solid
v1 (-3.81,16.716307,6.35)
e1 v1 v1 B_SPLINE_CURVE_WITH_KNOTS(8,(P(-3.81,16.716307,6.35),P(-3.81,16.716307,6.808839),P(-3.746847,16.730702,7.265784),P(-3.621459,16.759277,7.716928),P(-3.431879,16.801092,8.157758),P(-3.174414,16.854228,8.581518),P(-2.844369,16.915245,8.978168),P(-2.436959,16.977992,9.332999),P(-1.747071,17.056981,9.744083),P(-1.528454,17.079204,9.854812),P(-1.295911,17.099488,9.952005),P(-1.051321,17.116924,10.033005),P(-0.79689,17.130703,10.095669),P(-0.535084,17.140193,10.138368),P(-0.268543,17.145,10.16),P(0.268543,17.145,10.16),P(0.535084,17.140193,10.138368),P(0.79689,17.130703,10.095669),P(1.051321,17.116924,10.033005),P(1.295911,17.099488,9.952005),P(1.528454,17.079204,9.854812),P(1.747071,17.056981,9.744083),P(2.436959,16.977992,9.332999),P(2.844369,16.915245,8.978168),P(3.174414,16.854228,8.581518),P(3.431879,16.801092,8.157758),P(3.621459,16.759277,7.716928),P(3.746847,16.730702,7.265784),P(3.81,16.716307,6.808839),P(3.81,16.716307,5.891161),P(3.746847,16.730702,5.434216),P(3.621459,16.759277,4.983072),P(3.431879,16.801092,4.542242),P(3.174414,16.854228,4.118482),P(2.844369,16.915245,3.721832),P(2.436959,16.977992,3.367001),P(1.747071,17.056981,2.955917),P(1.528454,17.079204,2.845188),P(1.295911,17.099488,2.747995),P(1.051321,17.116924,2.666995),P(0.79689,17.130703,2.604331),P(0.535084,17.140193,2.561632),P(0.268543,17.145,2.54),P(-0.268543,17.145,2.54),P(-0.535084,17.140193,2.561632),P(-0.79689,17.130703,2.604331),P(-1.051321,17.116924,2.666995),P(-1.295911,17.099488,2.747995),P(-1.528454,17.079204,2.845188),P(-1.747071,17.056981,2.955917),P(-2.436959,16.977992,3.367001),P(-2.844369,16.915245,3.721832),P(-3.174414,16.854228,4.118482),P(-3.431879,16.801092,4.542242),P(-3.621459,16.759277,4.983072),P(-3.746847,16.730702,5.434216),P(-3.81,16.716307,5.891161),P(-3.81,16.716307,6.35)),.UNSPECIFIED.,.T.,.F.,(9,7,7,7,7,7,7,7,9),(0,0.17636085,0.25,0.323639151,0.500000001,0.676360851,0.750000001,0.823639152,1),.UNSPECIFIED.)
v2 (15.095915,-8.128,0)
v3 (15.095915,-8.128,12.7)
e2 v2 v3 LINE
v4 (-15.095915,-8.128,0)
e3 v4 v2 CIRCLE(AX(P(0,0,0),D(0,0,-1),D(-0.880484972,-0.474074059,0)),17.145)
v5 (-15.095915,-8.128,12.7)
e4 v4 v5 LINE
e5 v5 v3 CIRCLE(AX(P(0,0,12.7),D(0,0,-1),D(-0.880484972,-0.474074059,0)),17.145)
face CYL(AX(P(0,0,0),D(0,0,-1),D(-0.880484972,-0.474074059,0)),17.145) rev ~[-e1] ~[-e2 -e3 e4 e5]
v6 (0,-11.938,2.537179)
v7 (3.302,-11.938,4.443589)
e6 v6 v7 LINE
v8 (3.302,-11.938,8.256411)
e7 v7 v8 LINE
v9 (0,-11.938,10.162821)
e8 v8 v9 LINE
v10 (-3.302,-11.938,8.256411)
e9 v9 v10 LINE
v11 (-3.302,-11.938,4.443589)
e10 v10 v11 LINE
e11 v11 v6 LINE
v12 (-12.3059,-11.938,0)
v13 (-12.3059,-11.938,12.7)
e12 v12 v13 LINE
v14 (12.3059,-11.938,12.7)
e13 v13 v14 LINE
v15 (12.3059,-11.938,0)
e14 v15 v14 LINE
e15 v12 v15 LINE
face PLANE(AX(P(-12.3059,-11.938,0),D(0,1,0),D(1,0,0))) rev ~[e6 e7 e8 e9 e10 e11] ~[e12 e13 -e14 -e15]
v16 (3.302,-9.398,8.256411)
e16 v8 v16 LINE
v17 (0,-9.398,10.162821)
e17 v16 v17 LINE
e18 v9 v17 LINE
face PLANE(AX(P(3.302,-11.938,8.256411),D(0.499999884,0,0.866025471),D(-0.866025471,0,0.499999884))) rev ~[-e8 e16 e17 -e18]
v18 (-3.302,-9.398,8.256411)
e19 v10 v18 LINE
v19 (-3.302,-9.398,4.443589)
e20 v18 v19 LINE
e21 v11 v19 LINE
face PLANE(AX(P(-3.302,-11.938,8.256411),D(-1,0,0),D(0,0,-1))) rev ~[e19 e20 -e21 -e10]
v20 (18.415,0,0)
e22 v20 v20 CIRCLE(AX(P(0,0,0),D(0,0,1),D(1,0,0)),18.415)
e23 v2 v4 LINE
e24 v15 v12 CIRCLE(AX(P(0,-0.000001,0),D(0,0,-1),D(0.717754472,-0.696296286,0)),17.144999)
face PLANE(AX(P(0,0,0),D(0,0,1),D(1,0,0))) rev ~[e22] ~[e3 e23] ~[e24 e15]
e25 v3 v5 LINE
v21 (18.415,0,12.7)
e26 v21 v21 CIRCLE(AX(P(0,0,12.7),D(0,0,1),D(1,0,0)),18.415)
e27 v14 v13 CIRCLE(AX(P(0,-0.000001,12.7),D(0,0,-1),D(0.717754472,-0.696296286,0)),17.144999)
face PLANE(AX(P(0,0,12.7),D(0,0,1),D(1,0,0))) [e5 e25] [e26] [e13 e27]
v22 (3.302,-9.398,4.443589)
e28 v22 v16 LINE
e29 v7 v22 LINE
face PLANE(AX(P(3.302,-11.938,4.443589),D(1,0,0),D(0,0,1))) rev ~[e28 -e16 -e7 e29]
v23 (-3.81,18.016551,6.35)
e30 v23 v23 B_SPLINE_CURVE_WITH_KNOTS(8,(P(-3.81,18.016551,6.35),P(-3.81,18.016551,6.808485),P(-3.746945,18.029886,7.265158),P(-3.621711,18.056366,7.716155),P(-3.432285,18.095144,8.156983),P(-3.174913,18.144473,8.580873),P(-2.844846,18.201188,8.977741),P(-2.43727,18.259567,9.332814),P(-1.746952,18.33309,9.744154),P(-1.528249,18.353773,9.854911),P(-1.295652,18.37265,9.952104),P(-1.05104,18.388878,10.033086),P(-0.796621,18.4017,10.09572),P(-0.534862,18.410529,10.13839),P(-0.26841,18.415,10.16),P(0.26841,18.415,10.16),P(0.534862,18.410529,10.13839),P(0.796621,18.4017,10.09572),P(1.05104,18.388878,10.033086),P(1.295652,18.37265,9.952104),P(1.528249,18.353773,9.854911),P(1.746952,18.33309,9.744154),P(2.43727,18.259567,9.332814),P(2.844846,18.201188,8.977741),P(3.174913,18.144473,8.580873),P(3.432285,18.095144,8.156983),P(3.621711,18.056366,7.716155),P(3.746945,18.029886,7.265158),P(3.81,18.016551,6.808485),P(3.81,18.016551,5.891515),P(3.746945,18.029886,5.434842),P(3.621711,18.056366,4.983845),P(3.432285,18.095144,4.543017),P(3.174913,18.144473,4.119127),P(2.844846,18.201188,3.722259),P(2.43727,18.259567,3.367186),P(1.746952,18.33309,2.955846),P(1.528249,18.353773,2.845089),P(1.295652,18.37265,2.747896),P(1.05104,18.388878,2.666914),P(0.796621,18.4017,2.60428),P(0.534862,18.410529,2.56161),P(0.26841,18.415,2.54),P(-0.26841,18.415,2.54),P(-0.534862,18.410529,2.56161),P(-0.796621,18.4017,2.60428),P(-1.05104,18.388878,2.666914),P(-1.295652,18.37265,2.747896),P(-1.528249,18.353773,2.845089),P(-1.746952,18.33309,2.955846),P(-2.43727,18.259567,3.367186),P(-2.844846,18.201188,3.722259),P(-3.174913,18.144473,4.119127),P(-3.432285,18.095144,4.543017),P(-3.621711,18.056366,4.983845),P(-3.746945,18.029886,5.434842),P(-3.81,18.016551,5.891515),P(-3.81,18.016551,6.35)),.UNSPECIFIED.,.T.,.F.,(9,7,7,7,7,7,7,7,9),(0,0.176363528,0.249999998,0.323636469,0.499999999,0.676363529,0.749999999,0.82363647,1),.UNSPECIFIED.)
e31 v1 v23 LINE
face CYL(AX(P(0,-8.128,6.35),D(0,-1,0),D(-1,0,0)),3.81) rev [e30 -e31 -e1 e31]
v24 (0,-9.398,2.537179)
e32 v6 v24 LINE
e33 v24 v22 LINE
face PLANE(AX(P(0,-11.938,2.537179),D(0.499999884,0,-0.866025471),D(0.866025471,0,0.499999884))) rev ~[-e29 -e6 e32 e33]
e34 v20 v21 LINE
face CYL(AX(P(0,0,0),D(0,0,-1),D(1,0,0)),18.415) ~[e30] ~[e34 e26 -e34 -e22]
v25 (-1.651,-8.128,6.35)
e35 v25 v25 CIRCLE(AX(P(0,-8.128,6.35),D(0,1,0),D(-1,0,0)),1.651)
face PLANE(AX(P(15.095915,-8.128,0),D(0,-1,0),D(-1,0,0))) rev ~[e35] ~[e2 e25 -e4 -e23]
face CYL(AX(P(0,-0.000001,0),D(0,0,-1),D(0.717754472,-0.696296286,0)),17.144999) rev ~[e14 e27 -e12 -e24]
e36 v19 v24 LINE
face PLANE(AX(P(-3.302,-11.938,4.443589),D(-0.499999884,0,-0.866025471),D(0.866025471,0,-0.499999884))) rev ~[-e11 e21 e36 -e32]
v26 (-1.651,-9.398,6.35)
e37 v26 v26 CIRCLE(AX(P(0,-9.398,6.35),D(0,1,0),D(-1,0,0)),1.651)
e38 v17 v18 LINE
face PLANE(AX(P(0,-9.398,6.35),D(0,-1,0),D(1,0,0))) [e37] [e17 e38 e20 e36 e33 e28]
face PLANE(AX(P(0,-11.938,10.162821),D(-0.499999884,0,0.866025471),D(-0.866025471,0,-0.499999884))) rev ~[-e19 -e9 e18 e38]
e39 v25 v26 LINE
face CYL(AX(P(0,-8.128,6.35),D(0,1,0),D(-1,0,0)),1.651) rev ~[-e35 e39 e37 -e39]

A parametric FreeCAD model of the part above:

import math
import FreeCAD as App
import Part
import Sketcher
Q = App.Units.Quantity


def add_polygon(sketch, points):
    """Adds a closed chain of lines whose ends are joined by coincident constraints."""
    first, n = sketch.GeometryCount, len(points)
    for a, b in zip(points, points[1:] + points[:1]):
        sketch.addGeometry(Part.LineSegment(App.Vector(*a, 0), App.Vector(*b, 0)), False)
    for i in range(n):
        sketch.addConstraint(Sketcher.Constraint("Coincident", first + i, 2, first + (i + 1) % n, 1))

doc = App.newDocument("Part")
params = doc.addObject("Spreadsheet::Sheet", "Params")
for row, (alias, value) in enumerate([
    ("sketch1_diameter", "1.45 in"),
    ("sketch1_radius", "0.675 in"),
    ("pad1_length", "0.5 in"),
    ("sketch2_diameter", "0.13 in"),
    ("pocket1_length", "0.15 in"),
    ("pocket2_length", "0.1 in"),
    ("sketch4_diameter", "0.3 in"),
], start=1):
    params.set(f"A{row}", alias)
    params.set(f"B{row}", "=" + value)
    params.setAlias(f"B{row}", alias)

body = doc.addObject("PartDesign::Body", "Body")

sketch1 = doc.addObject("Sketcher::SketchObject", "Sketch")
body.addObject(sketch1)
sketch1.AttachmentSupport = (doc.XY_Plane, [""])
sketch1.MapMode = "FlatFace"
sketch1.addGeometry([
    Part.Circle(App.Vector(0, 0, 0), App.Vector(0, 0, 1), 18),
    Part.LineSegment(App.Vector(-12, -12, 0), App.Vector(12, -12, 0)),
    Part.ArcOfCircle(Part.Circle(App.Vector(0, 0, 0), App.Vector(0, 0, 1), 17), math.radians(-136), math.radians(-44)),
    Part.ArcOfCircle(Part.Circle(App.Vector(0, 0, 0), App.Vector(0, 0, 1), 17), math.radians(-28), math.radians(208)),
    Part.LineSegment(App.Vector(15, -8, 0), App.Vector(-15, -8, 0)),
], False)
sketch1.addConstraint([
    Sketcher.Constraint("Coincident", 1, 1, 2, 1),
    Sketcher.Constraint("Coincident", 2, 2, 1, 2),
    Sketcher.Constraint("Coincident", 3, 1, 4, 1),
    Sketcher.Constraint("Coincident", 4, 2, 3, 2),
    Sketcher.Constraint("Horizontal", 1),
    Sketcher.Constraint("Horizontal", 4),
    Sketcher.Constraint("Coincident", 0, 3, -1, 1),
    Sketcher.Constraint("Coincident", 2, 3, -1, 1),
    Sketcher.Constraint("Coincident", 3, 3, -1, 1),
    Sketcher.Constraint("Equal", 2, 3),
    Sketcher.Constraint("Diameter", 0, Q("1.45 in")),
    Sketcher.Constraint("Radius", 2, Q("0.675 in")),
    Sketcher.Constraint("DistanceY", 1, 1, -1, 1, Q("0.47 in")),
    Sketcher.Constraint("DistanceY", 3, 1, -1, 1, Q("0.32 in")),
])
sketch1.setExpression("Constraints[10]", "Params.sketch1_diameter")
sketch1.setExpression("Constraints[11]", "Params.sketch1_radius")
pad1 = doc.addObject("PartDesign::Pad", "Pad")
body.addObject(pad1)
pad1.Profile = sketch1
pad1.setExpression("Length", "Params.pad1_length")

sketch2 = doc.addObject("Sketcher::SketchObject", "Sketch001")
body.addObject(sketch2)
sketch2.AttachmentSupport = (doc.XZ_Plane, [""])
sketch2.MapMode = "FlatFace"
sketch2.AttachmentOffset = App.Placement(App.Vector(0, 0, 0.32 * 25.4), App.Rotation())
sketch2.addGeometry(Part.Circle(App.Vector(0, 6.3, 0), App.Vector(0, 0, 1), 1.7), False)
sketch2.addConstraint([
    Sketcher.Constraint("PointOnObject", 0, 3, -2),
    Sketcher.Constraint("Diameter", 0, Q("0.13 in")),
    Sketcher.Constraint("DistanceY", -1, 1, 0, 3, Q("0.25 in")),
])
sketch2.setExpression("Constraints[1]", "Params.sketch2_diameter")
pocket1 = doc.addObject("PartDesign::Pocket", "Pocket")
body.addObject(pocket1)
pocket1.Profile = sketch2
pocket1.setExpression("Length", "Params.pocket1_length")
pocket1.Reversed = True

sketch3 = doc.addObject("Sketcher::SketchObject", "Sketch002")
body.addObject(sketch3)
sketch3.AttachmentSupport = (doc.XZ_Plane, [""])
sketch3.MapMode = "FlatFace"
sketch3.AttachmentOffset = App.Placement(App.Vector(0, 0, 0.47 * 25.4), App.Rotation())
add_polygon(sketch3, [(3.3, 4.4), (3.3, 8.3), (0, 10.2), (-3.3, 8.3), (-3.3, 4.4), (0, 2.5)])
sketch3.addConstraint([
    Sketcher.Constraint("Vertical", 0),
    Sketcher.Constraint("Vertical", 3),
    Sketcher.Constraint("Symmetric", 0, 2, 2, 2, -2),
    Sketcher.Constraint("PointOnObject", 1, 2, -2),
    Sketcher.Constraint("PointOnObject", 4, 2, -2),
    Sketcher.Constraint("Parallel", 1, 4),
    Sketcher.Constraint("Parallel", 2, 5),
    Sketcher.Constraint("Angle", 1, Q("150.000008 deg")),
    Sketcher.Constraint("DistanceX", -1, 1, 0, 2, Q("0.13 in")),
    Sketcher.Constraint("DistanceY", 0, 1, 0, 2, Q("3.812822 mm")),
    Sketcher.Constraint("DistanceY", -1, 1, 0, 2, Q("8.256411 mm")),
])
pocket2 = doc.addObject("PartDesign::Pocket", "Pocket001")
body.addObject(pocket2)
pocket2.Profile = sketch3
pocket2.setExpression("Length", "Params.pocket2_length")

sketch4 = doc.addObject("Sketcher::SketchObject", "Sketch003")
body.addObject(sketch4)
sketch4.AttachmentSupport = (doc.XZ_Plane, [""])
sketch4.MapMode = "FlatFace"
sketch4.AttachmentOffset = App.Placement(App.Vector(0, 0, 0.32 * 25.4), App.Rotation())
sketch4.addGeometry(Part.Circle(App.Vector(0, 6.3, 0), App.Vector(0, 0, 1), 3.8), False)
sketch4.addConstraint([
    Sketcher.Constraint("PointOnObject", 0, 3, -2),
    Sketcher.Constraint("Diameter", 0, Q("0.3 in")),
    Sketcher.Constraint("DistanceY", -1, 1, 0, 3, Q("0.25 in")),
])
sketch4.setExpression("Constraints[1]", "Params.sketch4_diameter")
pocket3 = doc.addObject("PartDesign::Pocket", "Pocket002")
body.addObject(pocket3)
pocket3.Profile = sketch4
pocket3.Type = "ThroughAll"

doc.recompute()
